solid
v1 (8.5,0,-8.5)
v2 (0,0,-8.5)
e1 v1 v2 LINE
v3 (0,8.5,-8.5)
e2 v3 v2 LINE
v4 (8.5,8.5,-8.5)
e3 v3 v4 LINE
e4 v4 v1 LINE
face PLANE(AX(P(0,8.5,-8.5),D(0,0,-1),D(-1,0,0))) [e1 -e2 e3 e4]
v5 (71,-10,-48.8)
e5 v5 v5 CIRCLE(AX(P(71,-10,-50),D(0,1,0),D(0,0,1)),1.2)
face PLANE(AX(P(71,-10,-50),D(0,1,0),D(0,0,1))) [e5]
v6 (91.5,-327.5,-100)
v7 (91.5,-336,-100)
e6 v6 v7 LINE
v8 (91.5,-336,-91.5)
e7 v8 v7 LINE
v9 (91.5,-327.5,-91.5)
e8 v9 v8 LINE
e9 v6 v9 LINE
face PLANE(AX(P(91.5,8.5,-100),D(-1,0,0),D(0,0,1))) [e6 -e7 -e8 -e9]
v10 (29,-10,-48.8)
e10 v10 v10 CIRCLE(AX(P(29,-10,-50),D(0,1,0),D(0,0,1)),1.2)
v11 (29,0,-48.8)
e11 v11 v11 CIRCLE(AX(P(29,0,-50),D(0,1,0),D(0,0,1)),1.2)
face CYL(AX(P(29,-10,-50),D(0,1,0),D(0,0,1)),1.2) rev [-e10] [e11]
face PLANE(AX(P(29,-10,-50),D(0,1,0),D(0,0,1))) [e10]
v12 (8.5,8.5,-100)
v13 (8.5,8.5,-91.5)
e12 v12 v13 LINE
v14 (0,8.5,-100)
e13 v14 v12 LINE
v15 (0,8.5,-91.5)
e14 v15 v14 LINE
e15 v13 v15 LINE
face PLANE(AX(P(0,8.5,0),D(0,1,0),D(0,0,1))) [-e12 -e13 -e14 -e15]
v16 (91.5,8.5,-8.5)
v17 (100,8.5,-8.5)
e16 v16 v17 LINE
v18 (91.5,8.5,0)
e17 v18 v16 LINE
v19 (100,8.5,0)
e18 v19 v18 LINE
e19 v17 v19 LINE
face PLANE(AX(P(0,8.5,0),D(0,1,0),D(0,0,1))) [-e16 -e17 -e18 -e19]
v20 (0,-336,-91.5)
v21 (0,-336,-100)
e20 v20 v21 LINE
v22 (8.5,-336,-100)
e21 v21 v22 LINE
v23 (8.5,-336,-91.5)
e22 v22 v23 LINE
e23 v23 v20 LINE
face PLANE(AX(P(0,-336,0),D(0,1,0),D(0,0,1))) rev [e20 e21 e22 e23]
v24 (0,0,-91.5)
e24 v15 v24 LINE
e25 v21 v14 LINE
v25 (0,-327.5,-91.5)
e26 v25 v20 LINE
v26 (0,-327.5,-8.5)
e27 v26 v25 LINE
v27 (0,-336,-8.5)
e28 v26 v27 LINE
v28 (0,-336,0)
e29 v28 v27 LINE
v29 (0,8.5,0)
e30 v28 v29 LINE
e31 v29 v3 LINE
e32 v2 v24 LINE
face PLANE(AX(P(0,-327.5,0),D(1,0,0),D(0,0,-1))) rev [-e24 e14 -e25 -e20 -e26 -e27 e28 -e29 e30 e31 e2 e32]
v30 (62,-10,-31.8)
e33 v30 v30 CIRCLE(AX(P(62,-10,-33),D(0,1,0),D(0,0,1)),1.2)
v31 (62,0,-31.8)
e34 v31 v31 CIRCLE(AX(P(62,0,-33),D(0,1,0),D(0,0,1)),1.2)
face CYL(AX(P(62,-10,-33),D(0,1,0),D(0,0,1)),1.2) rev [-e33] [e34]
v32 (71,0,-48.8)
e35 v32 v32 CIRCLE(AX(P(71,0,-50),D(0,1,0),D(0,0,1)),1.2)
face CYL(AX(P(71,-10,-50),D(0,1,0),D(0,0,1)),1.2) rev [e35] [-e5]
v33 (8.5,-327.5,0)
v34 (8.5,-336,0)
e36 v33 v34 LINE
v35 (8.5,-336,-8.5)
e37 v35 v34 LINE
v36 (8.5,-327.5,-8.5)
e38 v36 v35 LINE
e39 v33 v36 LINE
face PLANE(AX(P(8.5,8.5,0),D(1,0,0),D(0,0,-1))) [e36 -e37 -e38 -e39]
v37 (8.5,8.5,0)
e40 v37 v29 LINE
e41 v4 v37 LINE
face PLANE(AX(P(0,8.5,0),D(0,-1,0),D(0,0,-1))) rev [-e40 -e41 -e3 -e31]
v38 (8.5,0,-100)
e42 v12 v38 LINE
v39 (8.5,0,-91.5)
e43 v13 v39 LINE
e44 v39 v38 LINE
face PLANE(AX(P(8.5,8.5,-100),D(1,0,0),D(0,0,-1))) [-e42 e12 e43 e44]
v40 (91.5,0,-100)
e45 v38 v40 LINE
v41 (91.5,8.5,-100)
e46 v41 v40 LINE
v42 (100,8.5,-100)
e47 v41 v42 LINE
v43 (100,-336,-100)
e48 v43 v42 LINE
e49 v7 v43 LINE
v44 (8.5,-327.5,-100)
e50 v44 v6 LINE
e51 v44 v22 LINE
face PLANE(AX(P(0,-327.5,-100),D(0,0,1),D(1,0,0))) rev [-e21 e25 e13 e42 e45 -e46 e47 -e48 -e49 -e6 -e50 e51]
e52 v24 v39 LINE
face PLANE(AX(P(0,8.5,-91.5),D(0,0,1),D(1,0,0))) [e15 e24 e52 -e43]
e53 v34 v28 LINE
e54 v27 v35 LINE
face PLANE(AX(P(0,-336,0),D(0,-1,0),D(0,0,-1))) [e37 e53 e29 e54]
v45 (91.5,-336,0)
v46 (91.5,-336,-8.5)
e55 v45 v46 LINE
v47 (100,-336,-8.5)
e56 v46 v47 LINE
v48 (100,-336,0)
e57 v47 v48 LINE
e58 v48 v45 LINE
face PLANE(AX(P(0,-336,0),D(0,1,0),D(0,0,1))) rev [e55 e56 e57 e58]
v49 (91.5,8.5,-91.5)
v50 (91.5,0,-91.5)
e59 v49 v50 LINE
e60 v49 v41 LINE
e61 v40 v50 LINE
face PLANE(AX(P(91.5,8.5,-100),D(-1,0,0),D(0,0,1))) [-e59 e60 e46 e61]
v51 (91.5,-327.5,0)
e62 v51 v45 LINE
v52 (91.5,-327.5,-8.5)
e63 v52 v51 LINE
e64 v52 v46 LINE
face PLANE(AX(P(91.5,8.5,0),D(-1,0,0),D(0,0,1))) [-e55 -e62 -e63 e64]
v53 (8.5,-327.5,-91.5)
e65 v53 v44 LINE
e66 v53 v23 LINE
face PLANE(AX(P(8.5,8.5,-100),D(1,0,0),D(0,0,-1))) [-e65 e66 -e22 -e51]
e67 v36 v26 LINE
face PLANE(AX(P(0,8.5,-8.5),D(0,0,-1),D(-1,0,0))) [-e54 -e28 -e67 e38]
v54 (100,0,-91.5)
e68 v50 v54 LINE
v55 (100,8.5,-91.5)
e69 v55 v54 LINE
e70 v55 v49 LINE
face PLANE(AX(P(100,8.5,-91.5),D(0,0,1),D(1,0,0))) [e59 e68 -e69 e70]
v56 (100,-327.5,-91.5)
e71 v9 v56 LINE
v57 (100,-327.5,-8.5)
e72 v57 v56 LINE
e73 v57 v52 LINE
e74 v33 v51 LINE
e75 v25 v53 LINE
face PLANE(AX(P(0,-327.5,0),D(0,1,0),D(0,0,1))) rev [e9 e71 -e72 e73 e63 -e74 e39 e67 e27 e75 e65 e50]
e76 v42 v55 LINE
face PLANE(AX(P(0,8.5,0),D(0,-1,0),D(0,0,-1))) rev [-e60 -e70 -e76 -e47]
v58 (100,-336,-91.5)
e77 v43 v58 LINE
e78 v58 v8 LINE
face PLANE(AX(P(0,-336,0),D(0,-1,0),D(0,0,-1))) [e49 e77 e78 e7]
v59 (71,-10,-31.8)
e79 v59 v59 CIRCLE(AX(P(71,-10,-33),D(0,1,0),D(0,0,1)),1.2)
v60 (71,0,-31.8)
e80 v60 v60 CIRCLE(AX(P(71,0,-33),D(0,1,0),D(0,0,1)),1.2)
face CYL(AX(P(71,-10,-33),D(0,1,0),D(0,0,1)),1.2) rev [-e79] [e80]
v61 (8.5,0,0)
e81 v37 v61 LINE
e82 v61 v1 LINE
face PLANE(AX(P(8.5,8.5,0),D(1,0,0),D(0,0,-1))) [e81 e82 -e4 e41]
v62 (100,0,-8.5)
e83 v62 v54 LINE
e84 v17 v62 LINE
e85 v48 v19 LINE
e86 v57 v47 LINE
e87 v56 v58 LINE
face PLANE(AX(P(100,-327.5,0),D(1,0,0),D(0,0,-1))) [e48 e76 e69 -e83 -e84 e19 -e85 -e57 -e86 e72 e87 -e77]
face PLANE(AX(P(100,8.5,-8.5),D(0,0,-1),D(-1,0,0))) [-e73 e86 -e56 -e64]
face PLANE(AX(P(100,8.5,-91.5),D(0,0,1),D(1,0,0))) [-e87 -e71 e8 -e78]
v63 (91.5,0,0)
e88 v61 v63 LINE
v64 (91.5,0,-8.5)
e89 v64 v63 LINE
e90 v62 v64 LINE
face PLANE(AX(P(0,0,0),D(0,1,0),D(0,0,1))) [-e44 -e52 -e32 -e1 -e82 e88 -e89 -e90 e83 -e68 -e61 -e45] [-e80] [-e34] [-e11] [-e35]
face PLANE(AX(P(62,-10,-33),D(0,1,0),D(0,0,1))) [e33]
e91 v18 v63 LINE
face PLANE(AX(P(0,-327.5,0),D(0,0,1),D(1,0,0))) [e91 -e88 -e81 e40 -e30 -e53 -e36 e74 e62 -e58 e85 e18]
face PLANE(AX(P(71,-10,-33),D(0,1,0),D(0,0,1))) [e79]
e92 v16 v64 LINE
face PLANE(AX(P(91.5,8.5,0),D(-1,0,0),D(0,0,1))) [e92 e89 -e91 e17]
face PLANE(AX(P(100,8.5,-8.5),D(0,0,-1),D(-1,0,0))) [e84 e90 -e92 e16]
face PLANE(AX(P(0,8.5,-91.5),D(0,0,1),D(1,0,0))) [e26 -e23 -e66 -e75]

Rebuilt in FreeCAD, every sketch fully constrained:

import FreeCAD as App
import Part
import Sketcher

V = App.Vector
Q = App.Units.Quantity


def add_polygon(sketch, points):
    """Adds a closed chain of lines whose ends are joined by coincident constraints."""
    first, n = sketch.GeometryCount, len(points)
    for a, b in zip(points, points[1:] + points[:1]):
        sketch.addGeometry(Part.LineSegment(App.Vector(*a, 0), App.Vector(*b, 0)), False)
    for i in range(n):
        sketch.addConstraint(Sketcher.Constraint("Coincident", first + i, 2, first + (i + 1) % n, 1))

doc = App.newDocument("Part")
body = doc.addObject("PartDesign::Body", "Body")

# Sketch on XZ plane
sketch1 = doc.addObject("Sketcher::SketchObject", "Sketch")
body.addObject(sketch1)
sketch1.AttachmentSupport = (doc.XZ_Plane, [""])
sketch1.MapMode = "FlatFace"
add_polygon(sketch1, [(0, 0), (100, 0), (100, -100), (0, -100)])  # lines 0-3
sketch1.addConstraint([
    Sketcher.Constraint("Horizontal", 0),
    Sketcher.Constraint("Vertical", 1),
    Sketcher.Constraint("Horizontal", 2),
    Sketcher.Constraint("Vertical", 3),
    Sketcher.Constraint("Coincident", 3, 2, -1, 1),
    Sketcher.Constraint("Equal", 2, 1),
    Sketcher.Constraint("DistanceX", 0, 1, 0, 2, Q("100 mm")),
])
pad1 = doc.addObject("PartDesign::Pad", "Pad")
body.addObject(pad1)
pad1.Profile = sketch1
pad1.Length = 327.5

# Sketch on XZ plane
sketch2 = doc.addObject("Sketcher::SketchObject", "Sketch001")
body.addObject(sketch2)
sketch2.AttachmentSupport = (doc.XZ_Plane, [""])
sketch2.MapMode = "FlatFace"
sketch2.addGeometry([
    Part.Circle(V(71, -50, 0), V(0, 0, 1), 1.2),
    Part.Circle(V(29, -50, 0), V(0, 0, 1), 1.2),
    Part.Circle(V(62, -33, 0), V(0, 0, 1), 1.2),
    Part.Circle(V(71, -33, 0), V(0, 0, 1), 1.2),
], False)
sketch2.addConstraint([
    Sketcher.Constraint("Equal", 0, 1),
    Sketcher.Constraint("Equal", 1, 2),
    Sketcher.Constraint("Equal", 2, 3),
    Sketcher.Constraint("Horizontal", 0, 3, 1, 3),
    Sketcher.Constraint("Horizontal", 2, 3, 3, 3),
    Sketcher.Constraint("Vertical", 0, 3, 3, 3),
    Sketcher.Constraint("Diameter", 0, Q("2.4 mm")),
    Sketcher.Constraint("DistanceX", -1, 1, 0, 3, Q("71 mm")),
    Sketcher.Constraint("DistanceY", 0, 3, -1, 1, Q("50 mm")),
    Sketcher.Constraint("DistanceX", -1, 1, 1, 3, Q("29 mm")),
    Sketcher.Constraint("DistanceX", -1, 1, 2, 3, Q("62 mm")),
    Sketcher.Constraint("DistanceY", 2, 3, -1, 1, Q("33 mm")),
])
pocket1 = doc.addObject("PartDesign::Pocket", "Pocket")
body.addObject(pocket1)
pocket1.Profile = sketch2
pocket1.Length = 10
pocket1.Reversed = True

# Sketch on XZ plane
sketch3 = doc.addObject("Sketcher::SketchObject", "Sketch002")
body.addObject(sketch3)
sketch3.AttachmentSupport = (doc.XZ_Plane, [""])
sketch3.MapMode = "FlatFace"
sketch3.AttachmentOffset = App.Placement(V(0, 0, 327.5), App.Rotation())
add_polygon(sketch3, [(8, -100), (8, -92), (0, -92), (0, -100)])  # lines 0-3
add_polygon(sketch3, [(100, -100), (100, -92), (92, -92), (92, -100)])  # lines 4-7
add_polygon(sketch3, [(8, -8), (8, 0), (0, 0), (0, -8)])  # lines 8-11
add_polygon(sketch3, [(100, -8), (100, 0), (92, 0), (92, -8)])  # lines 12-15
sketch3.addConstraint([
    Sketcher.Constraint("Vertical", 0),
    Sketcher.Constraint("Horizontal", 1),
    Sketcher.Constraint("Vertical", 2),
    Sketcher.Constraint("Horizontal", 3),
    Sketcher.Constraint("Vertical", 4),
    Sketcher.Constraint("Horizontal", 5),
    Sketcher.Constraint("Vertical", 6),
    Sketcher.Constraint("Horizontal", 7),
    Sketcher.Constraint("Vertical", 8),
    Sketcher.Constraint("Horizontal", 9),
    Sketcher.Constraint("Vertical", 10),
    Sketcher.Constraint("Horizontal", 11),
    Sketcher.Constraint("Vertical", 12),
    Sketcher.Constraint("Horizontal", 13),
    Sketcher.Constraint("Vertical", 14),
    Sketcher.Constraint("Horizontal", 15),
    Sketcher.Constraint("Coincident", 9, 2, -1, 1),
    Sketcher.Constraint("PointOnObject", 1, 2, -2),
    Sketcher.Constraint("PointOnObject", 12, 2, -1),
    Sketcher.Constraint("Horizontal", 1, 2, 4, 2),
    Sketcher.Constraint("Horizontal", 3, 2, 6, 2),
    Sketcher.Constraint("Horizontal", 11, 2, 14, 2),
    Sketcher.Constraint("Vertical", 3, 2, 8, 2),
    Sketcher.Constraint("Vertical", 7, 2, 12, 2),
    Sketcher.Constraint("Vertical", 6, 2, 13, 2),
    Sketcher.Constraint("Equal", 3, 5),
    Sketcher.Constraint("Equal", 15, 0),
    Sketcher.Constraint("Equal", 6, 8),
    Sketcher.Constraint("DistanceX", 1, 2, 1, 1, Q("8.5 mm")),
    Sketcher.Constraint("DistanceY", 2, 2, -1, 1, Q("100 mm")),
    Sketcher.Constraint("DistanceX", -1, 1, 4, 2, Q("100 mm")),
])
pad2 = doc.addObject("PartDesign::Pad", "Pad001")
body.addObject(pad2)
pad2.Profile = sketch3
pad2.Type = "TwoLengths"
pad2.Length = 8.5
pad2.Length2 = 336

doc.recompute()
